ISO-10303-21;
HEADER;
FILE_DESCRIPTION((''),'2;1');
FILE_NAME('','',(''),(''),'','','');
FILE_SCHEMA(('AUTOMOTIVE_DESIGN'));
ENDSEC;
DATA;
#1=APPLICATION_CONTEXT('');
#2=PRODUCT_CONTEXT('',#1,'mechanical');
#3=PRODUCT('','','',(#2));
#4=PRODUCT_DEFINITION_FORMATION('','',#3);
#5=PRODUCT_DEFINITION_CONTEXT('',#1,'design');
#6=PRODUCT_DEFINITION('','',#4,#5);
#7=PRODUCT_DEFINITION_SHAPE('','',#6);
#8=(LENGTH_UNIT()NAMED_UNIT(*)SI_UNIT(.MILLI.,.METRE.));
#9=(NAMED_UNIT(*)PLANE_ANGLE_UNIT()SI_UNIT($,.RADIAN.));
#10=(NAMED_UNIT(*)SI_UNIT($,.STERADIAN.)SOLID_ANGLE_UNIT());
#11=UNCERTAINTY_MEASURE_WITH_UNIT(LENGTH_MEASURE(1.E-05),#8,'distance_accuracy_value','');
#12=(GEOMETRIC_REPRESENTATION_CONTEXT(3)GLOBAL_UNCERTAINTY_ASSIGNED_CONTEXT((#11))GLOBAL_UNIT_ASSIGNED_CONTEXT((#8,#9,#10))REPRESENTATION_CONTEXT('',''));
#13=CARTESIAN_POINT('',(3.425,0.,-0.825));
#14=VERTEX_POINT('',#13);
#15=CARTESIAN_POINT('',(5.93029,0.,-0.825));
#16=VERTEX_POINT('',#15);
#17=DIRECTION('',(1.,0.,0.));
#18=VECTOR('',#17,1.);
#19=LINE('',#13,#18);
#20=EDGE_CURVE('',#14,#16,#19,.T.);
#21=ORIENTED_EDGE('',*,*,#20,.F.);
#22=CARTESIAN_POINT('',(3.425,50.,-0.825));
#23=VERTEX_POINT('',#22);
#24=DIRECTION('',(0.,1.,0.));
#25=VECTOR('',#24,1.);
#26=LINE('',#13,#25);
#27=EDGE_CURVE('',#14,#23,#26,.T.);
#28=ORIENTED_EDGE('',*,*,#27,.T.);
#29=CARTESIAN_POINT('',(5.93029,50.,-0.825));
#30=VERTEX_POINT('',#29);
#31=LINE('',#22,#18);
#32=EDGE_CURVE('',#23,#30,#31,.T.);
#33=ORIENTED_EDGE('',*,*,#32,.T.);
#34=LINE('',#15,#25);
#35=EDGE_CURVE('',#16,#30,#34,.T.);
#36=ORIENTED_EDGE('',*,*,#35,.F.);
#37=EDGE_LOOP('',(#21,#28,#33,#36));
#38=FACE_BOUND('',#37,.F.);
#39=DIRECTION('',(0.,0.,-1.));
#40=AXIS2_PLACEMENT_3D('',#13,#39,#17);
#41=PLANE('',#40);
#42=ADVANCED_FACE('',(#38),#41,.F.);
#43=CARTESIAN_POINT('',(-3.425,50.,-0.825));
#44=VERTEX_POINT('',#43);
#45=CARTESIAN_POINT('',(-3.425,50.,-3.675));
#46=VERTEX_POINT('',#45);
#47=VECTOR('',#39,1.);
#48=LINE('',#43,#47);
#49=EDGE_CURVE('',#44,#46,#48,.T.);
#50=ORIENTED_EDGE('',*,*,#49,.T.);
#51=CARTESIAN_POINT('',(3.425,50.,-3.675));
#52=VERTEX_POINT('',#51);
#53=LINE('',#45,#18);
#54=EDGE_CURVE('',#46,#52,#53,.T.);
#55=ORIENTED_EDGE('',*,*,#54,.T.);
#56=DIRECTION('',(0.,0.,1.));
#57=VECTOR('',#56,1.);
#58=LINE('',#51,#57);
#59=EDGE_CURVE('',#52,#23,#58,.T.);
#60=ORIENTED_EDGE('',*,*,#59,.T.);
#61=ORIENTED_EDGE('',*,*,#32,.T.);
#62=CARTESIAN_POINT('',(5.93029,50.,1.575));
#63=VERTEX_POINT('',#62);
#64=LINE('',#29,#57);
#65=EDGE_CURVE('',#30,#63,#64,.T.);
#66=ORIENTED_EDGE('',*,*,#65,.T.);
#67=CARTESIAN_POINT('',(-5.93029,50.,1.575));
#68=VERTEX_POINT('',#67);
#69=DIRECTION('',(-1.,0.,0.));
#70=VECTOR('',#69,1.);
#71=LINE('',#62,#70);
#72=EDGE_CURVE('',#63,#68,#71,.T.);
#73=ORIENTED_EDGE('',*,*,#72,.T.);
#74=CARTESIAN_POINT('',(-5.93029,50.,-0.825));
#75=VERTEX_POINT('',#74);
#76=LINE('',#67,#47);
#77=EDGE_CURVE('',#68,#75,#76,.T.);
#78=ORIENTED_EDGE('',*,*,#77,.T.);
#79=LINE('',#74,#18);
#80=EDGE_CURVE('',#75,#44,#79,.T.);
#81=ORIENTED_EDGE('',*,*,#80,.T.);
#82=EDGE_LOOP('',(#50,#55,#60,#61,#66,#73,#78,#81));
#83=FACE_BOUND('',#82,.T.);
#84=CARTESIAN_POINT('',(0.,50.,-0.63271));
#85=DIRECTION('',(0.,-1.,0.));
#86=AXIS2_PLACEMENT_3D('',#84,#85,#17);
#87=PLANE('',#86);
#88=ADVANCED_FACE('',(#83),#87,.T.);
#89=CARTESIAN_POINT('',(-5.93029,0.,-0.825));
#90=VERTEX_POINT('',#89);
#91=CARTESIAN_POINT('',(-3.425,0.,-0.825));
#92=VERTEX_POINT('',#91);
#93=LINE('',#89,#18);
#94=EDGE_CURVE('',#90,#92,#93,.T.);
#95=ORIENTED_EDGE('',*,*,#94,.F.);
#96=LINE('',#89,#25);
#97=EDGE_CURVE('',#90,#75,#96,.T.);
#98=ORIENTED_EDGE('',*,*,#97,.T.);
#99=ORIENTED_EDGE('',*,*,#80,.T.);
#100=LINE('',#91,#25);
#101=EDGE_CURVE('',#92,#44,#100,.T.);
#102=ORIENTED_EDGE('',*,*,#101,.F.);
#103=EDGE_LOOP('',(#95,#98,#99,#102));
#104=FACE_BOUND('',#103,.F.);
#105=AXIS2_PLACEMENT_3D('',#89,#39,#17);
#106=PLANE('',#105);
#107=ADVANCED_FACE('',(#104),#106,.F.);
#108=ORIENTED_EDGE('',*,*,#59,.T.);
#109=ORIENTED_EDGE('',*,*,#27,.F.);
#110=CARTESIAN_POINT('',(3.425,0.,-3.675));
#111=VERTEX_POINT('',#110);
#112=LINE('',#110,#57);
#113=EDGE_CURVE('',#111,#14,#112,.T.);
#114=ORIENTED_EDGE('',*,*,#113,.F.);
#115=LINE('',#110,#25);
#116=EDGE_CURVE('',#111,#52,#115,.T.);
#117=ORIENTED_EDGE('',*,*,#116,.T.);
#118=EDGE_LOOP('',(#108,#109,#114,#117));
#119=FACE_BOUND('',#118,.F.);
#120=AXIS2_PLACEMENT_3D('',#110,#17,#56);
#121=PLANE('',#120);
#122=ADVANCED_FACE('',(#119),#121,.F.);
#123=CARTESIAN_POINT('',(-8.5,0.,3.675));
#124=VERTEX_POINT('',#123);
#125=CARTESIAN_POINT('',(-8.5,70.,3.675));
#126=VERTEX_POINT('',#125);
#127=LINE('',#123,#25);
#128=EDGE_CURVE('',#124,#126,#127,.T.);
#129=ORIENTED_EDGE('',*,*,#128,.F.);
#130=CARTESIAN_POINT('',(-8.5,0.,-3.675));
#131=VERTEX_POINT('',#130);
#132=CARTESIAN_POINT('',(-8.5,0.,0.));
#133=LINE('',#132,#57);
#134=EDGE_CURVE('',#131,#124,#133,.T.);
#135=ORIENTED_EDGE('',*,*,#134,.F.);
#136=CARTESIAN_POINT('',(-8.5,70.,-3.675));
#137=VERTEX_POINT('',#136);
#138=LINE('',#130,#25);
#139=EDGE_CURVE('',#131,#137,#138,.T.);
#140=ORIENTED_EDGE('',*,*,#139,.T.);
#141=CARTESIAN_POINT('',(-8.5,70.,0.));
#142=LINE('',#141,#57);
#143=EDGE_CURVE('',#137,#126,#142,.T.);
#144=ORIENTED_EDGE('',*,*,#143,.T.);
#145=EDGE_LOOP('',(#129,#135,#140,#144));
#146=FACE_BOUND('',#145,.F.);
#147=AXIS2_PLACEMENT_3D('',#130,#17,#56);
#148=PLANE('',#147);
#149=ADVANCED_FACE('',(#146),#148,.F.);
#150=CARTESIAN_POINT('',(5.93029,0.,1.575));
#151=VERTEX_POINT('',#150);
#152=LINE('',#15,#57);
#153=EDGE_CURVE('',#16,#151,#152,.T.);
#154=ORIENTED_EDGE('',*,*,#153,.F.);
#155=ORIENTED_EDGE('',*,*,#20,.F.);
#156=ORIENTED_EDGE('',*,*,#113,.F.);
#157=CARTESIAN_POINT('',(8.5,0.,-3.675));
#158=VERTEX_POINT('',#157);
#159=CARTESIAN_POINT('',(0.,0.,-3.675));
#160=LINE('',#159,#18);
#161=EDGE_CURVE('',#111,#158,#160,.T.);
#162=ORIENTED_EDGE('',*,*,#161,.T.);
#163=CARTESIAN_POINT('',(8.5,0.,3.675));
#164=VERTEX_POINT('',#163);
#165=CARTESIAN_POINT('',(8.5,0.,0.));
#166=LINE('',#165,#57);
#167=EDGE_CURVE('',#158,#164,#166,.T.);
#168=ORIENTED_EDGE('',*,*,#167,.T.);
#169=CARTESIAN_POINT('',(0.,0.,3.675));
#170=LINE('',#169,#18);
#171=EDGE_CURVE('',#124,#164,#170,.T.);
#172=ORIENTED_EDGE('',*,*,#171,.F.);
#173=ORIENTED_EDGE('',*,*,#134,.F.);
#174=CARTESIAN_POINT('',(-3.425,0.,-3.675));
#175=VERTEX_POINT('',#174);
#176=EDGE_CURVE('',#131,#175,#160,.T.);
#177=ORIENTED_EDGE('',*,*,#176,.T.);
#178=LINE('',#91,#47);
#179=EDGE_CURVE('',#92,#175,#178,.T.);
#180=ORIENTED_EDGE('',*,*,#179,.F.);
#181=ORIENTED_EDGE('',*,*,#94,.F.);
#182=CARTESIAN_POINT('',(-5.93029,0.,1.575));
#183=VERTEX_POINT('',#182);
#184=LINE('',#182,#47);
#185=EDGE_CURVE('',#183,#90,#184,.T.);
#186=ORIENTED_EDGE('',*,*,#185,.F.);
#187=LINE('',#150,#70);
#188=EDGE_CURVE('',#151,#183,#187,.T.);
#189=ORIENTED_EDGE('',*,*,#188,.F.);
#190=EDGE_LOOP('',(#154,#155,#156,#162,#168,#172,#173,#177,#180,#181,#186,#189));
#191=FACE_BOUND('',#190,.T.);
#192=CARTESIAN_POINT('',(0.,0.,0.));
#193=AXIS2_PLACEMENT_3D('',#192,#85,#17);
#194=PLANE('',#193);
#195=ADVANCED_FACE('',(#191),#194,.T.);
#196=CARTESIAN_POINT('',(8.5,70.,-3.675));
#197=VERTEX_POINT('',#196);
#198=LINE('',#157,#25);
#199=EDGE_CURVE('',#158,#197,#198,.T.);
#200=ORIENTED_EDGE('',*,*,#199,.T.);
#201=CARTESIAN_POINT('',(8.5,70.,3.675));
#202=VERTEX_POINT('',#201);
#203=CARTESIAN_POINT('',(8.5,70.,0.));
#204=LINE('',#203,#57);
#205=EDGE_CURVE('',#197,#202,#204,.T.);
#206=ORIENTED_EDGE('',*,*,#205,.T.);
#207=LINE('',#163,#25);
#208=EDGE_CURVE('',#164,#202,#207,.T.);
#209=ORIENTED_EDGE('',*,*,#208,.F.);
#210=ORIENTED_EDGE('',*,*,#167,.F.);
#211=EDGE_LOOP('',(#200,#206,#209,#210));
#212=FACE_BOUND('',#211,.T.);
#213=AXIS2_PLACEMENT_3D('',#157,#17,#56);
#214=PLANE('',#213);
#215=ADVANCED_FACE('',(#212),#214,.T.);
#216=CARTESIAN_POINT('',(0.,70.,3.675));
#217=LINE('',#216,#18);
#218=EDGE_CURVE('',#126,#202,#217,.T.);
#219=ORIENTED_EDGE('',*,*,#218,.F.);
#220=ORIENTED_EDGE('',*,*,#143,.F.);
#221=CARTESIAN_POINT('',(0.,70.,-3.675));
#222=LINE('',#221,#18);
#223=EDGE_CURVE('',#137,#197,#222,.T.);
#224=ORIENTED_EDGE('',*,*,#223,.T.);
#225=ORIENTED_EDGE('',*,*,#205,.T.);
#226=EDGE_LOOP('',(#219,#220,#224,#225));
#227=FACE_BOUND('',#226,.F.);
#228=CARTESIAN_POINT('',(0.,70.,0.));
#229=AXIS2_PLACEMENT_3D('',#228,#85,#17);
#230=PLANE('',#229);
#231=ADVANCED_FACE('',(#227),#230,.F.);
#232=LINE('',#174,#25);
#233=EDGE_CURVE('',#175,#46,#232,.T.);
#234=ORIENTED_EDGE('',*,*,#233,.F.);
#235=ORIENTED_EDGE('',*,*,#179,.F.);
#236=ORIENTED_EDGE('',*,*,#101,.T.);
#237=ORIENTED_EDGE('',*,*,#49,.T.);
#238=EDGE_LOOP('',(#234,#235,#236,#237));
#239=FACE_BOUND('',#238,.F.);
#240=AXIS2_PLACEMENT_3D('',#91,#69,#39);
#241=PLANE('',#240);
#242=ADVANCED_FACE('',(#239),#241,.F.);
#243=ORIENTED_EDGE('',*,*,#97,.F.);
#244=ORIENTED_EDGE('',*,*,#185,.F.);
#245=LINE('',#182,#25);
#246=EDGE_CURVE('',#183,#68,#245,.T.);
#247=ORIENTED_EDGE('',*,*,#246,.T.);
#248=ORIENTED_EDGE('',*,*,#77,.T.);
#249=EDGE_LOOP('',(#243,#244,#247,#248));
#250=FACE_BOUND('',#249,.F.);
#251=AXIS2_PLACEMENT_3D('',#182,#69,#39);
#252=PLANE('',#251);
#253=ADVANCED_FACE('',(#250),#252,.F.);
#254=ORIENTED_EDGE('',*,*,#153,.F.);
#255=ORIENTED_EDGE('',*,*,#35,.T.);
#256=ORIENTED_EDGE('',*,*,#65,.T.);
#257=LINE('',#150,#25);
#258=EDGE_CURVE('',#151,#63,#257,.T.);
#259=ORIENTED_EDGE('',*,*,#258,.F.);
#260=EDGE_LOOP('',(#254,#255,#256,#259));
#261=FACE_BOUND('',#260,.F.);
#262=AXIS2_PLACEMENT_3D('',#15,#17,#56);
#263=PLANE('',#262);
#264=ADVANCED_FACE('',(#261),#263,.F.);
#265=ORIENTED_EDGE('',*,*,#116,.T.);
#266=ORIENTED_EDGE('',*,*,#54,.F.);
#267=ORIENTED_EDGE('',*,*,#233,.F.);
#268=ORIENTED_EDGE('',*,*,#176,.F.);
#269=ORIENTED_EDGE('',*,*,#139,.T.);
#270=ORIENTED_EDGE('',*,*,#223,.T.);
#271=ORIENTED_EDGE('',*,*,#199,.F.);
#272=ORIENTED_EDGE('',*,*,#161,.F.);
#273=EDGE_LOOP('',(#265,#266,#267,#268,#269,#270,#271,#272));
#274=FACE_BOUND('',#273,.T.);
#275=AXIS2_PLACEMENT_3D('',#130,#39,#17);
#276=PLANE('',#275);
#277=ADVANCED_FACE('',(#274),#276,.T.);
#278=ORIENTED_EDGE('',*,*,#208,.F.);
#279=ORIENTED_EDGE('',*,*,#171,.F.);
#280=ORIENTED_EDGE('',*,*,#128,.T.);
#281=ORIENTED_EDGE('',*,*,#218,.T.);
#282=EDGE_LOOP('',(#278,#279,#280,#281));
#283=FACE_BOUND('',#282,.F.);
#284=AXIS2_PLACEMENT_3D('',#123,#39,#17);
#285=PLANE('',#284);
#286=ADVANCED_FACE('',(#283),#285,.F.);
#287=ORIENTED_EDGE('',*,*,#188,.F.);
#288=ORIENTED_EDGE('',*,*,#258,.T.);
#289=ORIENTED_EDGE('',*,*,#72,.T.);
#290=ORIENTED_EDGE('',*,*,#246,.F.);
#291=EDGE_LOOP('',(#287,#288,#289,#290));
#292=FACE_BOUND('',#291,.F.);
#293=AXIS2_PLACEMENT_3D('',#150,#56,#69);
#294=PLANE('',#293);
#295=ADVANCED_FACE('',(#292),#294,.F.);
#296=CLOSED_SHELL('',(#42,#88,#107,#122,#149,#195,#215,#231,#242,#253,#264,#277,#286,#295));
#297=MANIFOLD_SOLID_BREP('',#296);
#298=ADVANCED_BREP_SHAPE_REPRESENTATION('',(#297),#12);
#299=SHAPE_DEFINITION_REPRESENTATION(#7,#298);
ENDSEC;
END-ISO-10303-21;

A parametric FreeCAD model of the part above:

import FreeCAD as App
import Part
import Sketcher

V = App.Vector
Q = App.Units.Quantity

doc = App.newDocument("Part")
body = doc.addObject("PartDesign::Body", "Body")

sketch1 = body.newObject("Sketcher::SketchObject", "Sketch")
sketch1.AttachmentSupport = (doc.getObject("XZ_Plane"), [""])
sketch1.MapMode = "FlatFace"
sketch1.addGeometry([
    Part.LineSegment(V(-8, 4, 0), V(-8, -4, 0)),
    Part.LineSegment(V(-8, -4, 0), V(8, -4, 0)),
    Part.LineSegment(V(8, -4, 0), V(8, 4, 0)),
    Part.LineSegment(V(8, 4, 0), V(-8, 4, 0)),
], False)
sketch1.addConstraint([
    Sketcher.Constraint("Coincident", 0, 2, 1, 1),
    Sketcher.Constraint("Coincident", 1, 2, 2, 1),
    Sketcher.Constraint("Coincident", 2, 2, 3, 1),
    Sketcher.Constraint("Coincident", 3, 2, 0, 1),
    Sketcher.Constraint("Vertical", 0),
    Sketcher.Constraint("Horizontal", 1),
    Sketcher.Constraint("Vertical", 2),
    Sketcher.Constraint("Horizontal", 3),
    Sketcher.Constraint("Symmetric", 0, 2, 2, 2, -1, 1),
    Sketcher.Constraint("DistanceX", 1, 1, 1, 2, Q("17 mm")),
    Sketcher.Constraint("DistanceY", 0, 2, 0, 1, Q("7.35 mm")),
])
pad1 = body.newObject("PartDesign::Pad", "Pad")
pad1.Profile = sketch1
pad1.Length = 70
pad1.Reversed = True

sketch2 = body.newObject("Sketcher::SketchObject", "Sketch001")
sketch2.AttachmentSupport = (doc.getObject("XZ_Plane"), [""])
sketch2.MapMode = "FlatFace"
sketch2.addGeometry([
    Part.LineSegment(V(-3.4, -0.8, 0), V(-3.4, -3.7, 0)),
    Part.LineSegment(V(-3.4, -3.7, 0), V(3.4, -3.7, 0)),
    Part.LineSegment(V(3.4, -3.7, 0), V(3.4, -0.8, 0)),
    Part.LineSegment(V(3.4, -0.8, 0), V(5.9, -0.8, 0)),
    Part.LineSegment(V(5.9, -0.8, 0), V(5.9, 1.6, 0)),
    Part.LineSegment(V(5.9, 1.6, 0), V(-5.9, 1.6, 0)),
    Part.LineSegment(V(-5.9, 1.6, 0), V(-5.9, -0.8, 0)),
    Part.LineSegment(V(-5.9, -0.8, 0), V(-3.4, -0.8, 0)),
], False)
sketch2.addConstraint([
    Sketcher.Constraint("Coincident", 0, 2, 1, 1),
    Sketcher.Constraint("Coincident", 1, 2, 2, 1),
    Sketcher.Constraint("Coincident", 2, 2, 3, 1),
    Sketcher.Constraint("Coincident", 3, 2, 4, 1),
    Sketcher.Constraint("Coincident", 4, 2, 5, 1),
    Sketcher.Constraint("Coincident", 5, 2, 6, 1),
    Sketcher.Constraint("Coincident", 6, 2, 7, 1),
    Sketcher.Constraint("Coincident", 7, 2, 0, 1),
    Sketcher.Constraint("Vertical", 0),
    Sketcher.Constraint("Horizontal", 1),
    Sketcher.Constraint("Vertical", 2),
    Sketcher.Constraint("Horizontal", 3),
    Sketcher.Constraint("Vertical", 4),
    Sketcher.Constraint("Horizontal", 5),
    Sketcher.Constraint("Vertical", 6),
    Sketcher.Constraint("Horizontal", 7),
    Sketcher.Constraint("Symmetric", 3, 2, 6, 2, -2),
    Sketcher.Constraint("Equal", 3, 7),
    Sketcher.Constraint("DistanceY", 4, 1, 4, 2, Q("2.4 mm")),
    Sketcher.Constraint("DistanceX", 1, 1, 1, 2, Q("6.85 mm")),
    Sketcher.Constraint("DistanceY", 0, 2, 0, 1, Q("2.85 mm")),
    Sketcher.Constraint("DistanceY", 0, 2, -1, 1, Q("3.675 mm")),
    Sketcher.Constraint("DistanceX", 3, 1, 3, 2, Q("2.50529 mm")),
])
pocket1 = body.newObject("PartDesign::Pocket", "Pocket")
pocket1.Profile = sketch2
pocket1.Length = 50

doc.recompute()
